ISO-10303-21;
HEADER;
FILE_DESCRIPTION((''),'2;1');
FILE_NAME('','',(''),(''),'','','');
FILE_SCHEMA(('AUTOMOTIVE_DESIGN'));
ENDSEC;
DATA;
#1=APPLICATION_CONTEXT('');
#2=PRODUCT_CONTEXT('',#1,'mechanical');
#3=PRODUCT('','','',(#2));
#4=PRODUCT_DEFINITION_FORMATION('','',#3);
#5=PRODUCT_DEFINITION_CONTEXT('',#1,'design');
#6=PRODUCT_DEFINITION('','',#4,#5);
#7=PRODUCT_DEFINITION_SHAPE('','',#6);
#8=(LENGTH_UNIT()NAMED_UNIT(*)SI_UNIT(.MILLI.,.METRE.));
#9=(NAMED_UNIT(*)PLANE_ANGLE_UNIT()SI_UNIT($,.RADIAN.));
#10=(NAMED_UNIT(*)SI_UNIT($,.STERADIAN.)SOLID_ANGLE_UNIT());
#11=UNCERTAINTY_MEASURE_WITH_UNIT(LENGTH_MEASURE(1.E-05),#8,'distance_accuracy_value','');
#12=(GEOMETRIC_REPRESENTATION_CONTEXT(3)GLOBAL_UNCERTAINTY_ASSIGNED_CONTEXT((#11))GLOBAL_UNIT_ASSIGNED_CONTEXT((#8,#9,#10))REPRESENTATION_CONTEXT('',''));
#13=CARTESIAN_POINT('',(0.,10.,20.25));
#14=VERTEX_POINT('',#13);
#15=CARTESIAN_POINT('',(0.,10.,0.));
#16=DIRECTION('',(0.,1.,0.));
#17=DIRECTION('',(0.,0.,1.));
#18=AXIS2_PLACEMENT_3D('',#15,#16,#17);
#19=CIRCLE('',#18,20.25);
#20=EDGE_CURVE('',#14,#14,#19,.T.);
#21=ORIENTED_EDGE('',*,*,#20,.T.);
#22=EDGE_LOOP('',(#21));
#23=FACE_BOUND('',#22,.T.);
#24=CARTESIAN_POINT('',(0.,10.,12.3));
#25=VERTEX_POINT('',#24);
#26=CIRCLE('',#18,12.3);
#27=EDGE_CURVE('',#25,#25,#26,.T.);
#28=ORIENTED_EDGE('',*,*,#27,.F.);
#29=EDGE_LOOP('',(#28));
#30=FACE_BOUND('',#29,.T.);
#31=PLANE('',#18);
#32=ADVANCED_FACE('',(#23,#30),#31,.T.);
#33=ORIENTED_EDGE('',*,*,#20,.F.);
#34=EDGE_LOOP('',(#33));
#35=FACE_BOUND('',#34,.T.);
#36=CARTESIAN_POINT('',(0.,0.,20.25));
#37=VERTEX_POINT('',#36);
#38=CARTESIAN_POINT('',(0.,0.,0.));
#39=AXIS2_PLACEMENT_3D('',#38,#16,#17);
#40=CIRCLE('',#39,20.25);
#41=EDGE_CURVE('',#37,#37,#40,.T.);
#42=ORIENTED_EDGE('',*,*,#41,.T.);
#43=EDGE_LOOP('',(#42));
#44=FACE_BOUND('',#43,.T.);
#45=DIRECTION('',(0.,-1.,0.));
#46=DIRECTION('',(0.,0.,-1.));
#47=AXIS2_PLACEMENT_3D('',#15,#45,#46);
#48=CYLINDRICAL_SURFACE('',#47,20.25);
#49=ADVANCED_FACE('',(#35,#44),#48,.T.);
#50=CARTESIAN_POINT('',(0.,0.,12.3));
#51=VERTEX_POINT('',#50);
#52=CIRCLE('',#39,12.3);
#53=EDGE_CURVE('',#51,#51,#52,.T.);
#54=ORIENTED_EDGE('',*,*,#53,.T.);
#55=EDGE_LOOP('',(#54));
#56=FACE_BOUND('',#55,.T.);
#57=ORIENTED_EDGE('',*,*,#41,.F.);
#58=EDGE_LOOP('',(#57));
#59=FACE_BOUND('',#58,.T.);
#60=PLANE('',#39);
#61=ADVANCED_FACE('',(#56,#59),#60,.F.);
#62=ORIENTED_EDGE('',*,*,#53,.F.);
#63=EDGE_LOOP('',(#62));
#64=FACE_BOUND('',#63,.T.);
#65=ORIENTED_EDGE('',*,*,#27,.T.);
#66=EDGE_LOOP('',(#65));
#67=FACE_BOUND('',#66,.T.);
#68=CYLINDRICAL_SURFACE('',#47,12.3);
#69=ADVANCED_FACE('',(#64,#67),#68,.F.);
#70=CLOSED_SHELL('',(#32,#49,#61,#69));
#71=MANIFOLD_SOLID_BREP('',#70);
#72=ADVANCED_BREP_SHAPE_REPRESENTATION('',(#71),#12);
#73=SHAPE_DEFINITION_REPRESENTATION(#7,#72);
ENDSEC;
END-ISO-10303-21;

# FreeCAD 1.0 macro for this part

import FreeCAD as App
import Part
import Sketcher
from FreeCAD import Vector

doc = App.newDocument("Part")
body = doc.addObject("PartDesign::Body", "Body")

sketch1 = doc.addObject("Sketcher::SketchObject", "Sketch")
body.addObject(sketch1)
sketch1.AttachmentSupport = (doc.XZ_Plane, [""])
sketch1.MapMode = "FlatFace"
sketch1.addGeometry([
    Part.Circle(Vector(0, 0, 0), Vector(0, 0, 1), 20),
    Part.Circle(Vector(0, 0, 0), Vector(0, 0, 1), 12),
], False)
sketch1.addConstraint([
    Sketcher.Constraint("Coincident", 0, 3, -1, 1),
    Sketcher.Constraint("Coincident", 1, 3, -1, 1),
    Sketcher.Constraint("Diameter", 0, 40.5),
    Sketcher.Constraint("Diameter", 1, 24.6),
])
pad1 = doc.addObject("PartDesign::Pad", "Pad")
body.addObject(pad1)
pad1.Profile = sketch1
pad1.Length = 10
pad1.Reversed = True

doc.recompute()
